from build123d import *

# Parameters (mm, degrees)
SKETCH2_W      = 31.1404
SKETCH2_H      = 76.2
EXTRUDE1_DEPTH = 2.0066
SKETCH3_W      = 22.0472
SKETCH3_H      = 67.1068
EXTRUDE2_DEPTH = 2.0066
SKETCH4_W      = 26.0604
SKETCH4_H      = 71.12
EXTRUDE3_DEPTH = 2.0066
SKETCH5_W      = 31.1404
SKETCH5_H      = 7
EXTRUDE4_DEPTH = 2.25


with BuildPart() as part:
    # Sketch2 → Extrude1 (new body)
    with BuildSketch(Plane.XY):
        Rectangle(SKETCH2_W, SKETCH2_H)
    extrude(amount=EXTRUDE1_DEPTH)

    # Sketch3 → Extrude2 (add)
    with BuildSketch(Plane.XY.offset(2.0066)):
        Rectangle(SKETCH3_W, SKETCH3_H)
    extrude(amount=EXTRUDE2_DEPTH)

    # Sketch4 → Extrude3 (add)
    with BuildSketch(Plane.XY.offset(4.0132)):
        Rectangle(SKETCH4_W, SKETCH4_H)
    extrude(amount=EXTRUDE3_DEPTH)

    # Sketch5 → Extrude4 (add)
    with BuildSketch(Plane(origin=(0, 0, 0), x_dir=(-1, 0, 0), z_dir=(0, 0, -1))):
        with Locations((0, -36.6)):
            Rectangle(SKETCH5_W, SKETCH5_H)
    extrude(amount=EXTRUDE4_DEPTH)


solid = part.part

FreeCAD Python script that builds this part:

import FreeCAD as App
import Part
import Sketcher
Q = App.Units.Quantity

doc = App.newDocument("Part")
params = doc.addObject("Spreadsheet::Sheet", "Params")
for row, (alias, value) in enumerate([
    ("sketch1_height", "3 in"),
    ("sketch1_width", "1.226 in"),
    ("pad1_length", "0.079 in"),
    ("sketch2_width", "0.868 in"),
    ("sketch2_height", "2.642 in"),
    ("pad2_length", "0.079 in"),
    ("sketch3_height", "2.8 in"),
    ("sketch3_width", "1.026 in"),
    ("pad3_length", "0.079 in"),
    ("sketch4_width", "1.226 in"),
    ("pad4_length", "2.25 mm"),
], start=1):
    params.set(f"A{row}", alias)
    params.set(f"B{row}", "=" + value)
    params.setAlias(f"B{row}", alias)

body = doc.addObject("PartDesign::Body", "Body")

sketch1 = body.newObject("Sketcher::SketchObject", "Sketch")
sketch1.AttachmentSupport = (doc.getObject("XY_Plane"), [""])
sketch1.MapMode = "FlatFace"
sketch1.addGeometry(Part.LineSegment(App.Vector(-16, 38, 0), App.Vector(-16, -38, 0)), False)
sketch1.addGeometry(Part.LineSegment(App.Vector(-16, -38, 0), App.Vector(16, -38, 0)), False)
sketch1.addGeometry(Part.LineSegment(App.Vector(16, -38, 0), App.Vector(16, 38, 0)), False)
sketch1.addGeometry(Part.LineSegment(App.Vector(16, 38, 0), App.Vector(-16, 38, 0)), False)
sketch1.addConstraint(Sketcher.Constraint("Coincident", 0, 2, 1, 1))
sketch1.addConstraint(Sketcher.Constraint("Coincident", 1, 2, 2, 1))
sketch1.addConstraint(Sketcher.Constraint("Coincident", 2, 2, 3, 1))
sketch1.addConstraint(Sketcher.Constraint("Coincident", 3, 2, 0, 1))
sketch1.addConstraint(Sketcher.Constraint("Vertical", 0))
sketch1.addConstraint(Sketcher.Constraint("Horizontal", 1))
sketch1.addConstraint(Sketcher.Constraint("Vertical", 2))
sketch1.addConstraint(Sketcher.Constraint("Horizontal", 3))
sketch1.addConstraint(Sketcher.Constraint("Symmetric", 0, 2, 2, 2, -1, 1))
sketch1.addConstraint(Sketcher.Constraint("DistanceY", 0, 2, 0, 1, Q("3 in")))
sketch1.addConstraint(Sketcher.Constraint("DistanceX", 1, 1, 1, 2, Q("1.226 in")))
sketch1.setExpression("Constraints[9]", "Params.sketch1_height")
sketch1.setExpression("Constraints[10]", "Params.sketch1_width")
pad1 = body.newObject("PartDesign::Pad", "Pad")
pad1.Profile = sketch1
pad1.setExpression("Length", "Params.pad1_length")

sketch2 = body.newObject("Sketcher::SketchObject", "Sketch001")
sketch2.AttachmentSupport = (doc.getObject("XY_Plane"), [""])
sketch2.MapMode = "FlatFace"
sketch2.AttachmentOffset = App.Placement(App.Vector(0, 0, 0.079 * 25.4), App.Rotation())
sketch2.addGeometry(Part.LineSegment(App.Vector(-11, 34, 0), App.Vector(-11, -34, 0)), False)
sketch2.addGeometry(Part.LineSegment(App.Vector(-11, -34, 0), App.Vector(11, -34, 0)), False)
sketch2.addGeometry(Part.LineSegment(App.Vector(11, -34, 0), App.Vector(11, 34, 0)), False)
sketch2.addGeometry(Part.LineSegment(App.Vector(11, 34, 0), App.Vector(-11, 34, 0)), False)
sketch2.addConstraint(Sketcher.Constraint("Coincident", 0, 2, 1, 1))
sketch2.addConstraint(Sketcher.Constraint("Coincident", 1, 2, 2, 1))
sketch2.addConstraint(Sketcher.Constraint("Coincident", 2, 2, 3, 1))
sketch2.addConstraint(Sketcher.Constraint("Coincident", 3, 2, 0, 1))
sketch2.addConstraint(Sketcher.Constraint("Vertical", 0))
sketch2.addConstraint(Sketcher.Constraint("Horizontal", 1))
sketch2.addConstraint(Sketcher.Constraint("Vertical", 2))
sketch2.addConstraint(Sketcher.Constraint("Horizontal", 3))
sketch2.addConstraint(Sketcher.Constraint("Symmetric", 0, 2, 2, 2, -1, 1))
sketch2.addConstraint(Sketcher.Constraint("DistanceX", 1, 1, 1, 2, Q("0.868 in")))
sketch2.addConstraint(Sketcher.Constraint("DistanceY", 0, 2, 0, 1, Q("2.642 in")))
sketch2.setExpression("Constraints[9]", "Params.sketch2_width")
sketch2.setExpression("Constraints[10]", "Params.sketch2_height")
pad2 = body.newObject("PartDesign::Pad", "Pad001")
pad2.Profile = sketch2
pad2.setExpression("Length", "Params.pad2_length")

sketch3 = body.newObject("Sketcher::SketchObject", "Sketch002")
sketch3.AttachmentSupport = (doc.getObject("XY_Plane"), [""])
sketch3.MapMode = "FlatFace"
sketch3.AttachmentOffset = App.Placement(App.Vector(0, 0, 0.158 * 25.4), App.Rotation())
sketch3.addGeometry(Part.LineSegment(App.Vector(-13, 36, 0), App.Vector(-13, -36, 0)), False)
sketch3.addGeometry(Part.LineSegment(App.Vector(-13, -36, 0), App.Vector(13, -36, 0)), False)
sketch3.addGeometry(Part.LineSegment(App.Vector(13, -36, 0), App.Vector(13, 36, 0)), False)
sketch3.addGeometry(Part.LineSegment(App.Vector(13, 36, 0), App.Vector(-13, 36, 0)), False)
sketch3.addConstraint(Sketcher.Constraint("Coincident", 0, 2, 1, 1))
sketch3.addConstraint(Sketcher.Constraint("Coincident", 1, 2, 2, 1))
sketch3.addConstraint(Sketcher.Constraint("Coincident", 2, 2, 3, 1))
sketch3.addConstraint(Sketcher.Constraint("Coincident", 3, 2, 0, 1))
sketch3.addConstraint(Sketcher.Constraint("Vertical", 0))
sketch3.addConstraint(Sketcher.Constraint("Horizontal", 1))
sketch3.addConstraint(Sketcher.Constraint("Vertical", 2))
sketch3.addConstraint(Sketcher.Constraint("Horizontal", 3))
sketch3.addConstraint(Sketcher.Constraint("Symmetric", 0, 2, 2, 2, -1, 1))
sketch3.addConstraint(Sketcher.Constraint("DistanceY", 0, 2, 0, 1, Q("2.8 in")))
sketch3.addConstraint(Sketcher.Constraint("DistanceX", 1, 1, 1, 2, Q("1.026 in")))
sketch3.setExpression("Constraints[9]", "Params.sketch3_height")
sketch3.setExpression("Constraints[10]", "Params.sketch3_width")
pad3 = body.newObject("PartDesign::Pad", "Pad002")
pad3.Profile = sketch3
pad3.setExpression("Length", "Params.pad3_length")

sketch4 = body.newObject("Sketcher::SketchObject", "Sketch003")
sketch4.AttachmentSupport = (doc.getObject("XY_Plane"), [""])
sketch4.MapMode = "FlatFace"
sketch4.addGeometry(Part.LineSegment(App.Vector(16, -33, 0), App.Vector(16, -40, 0)), False)
sketch4.addGeometry(Part.LineSegment(App.Vector(16, -40, 0), App.Vector(-16, -40, 0)), False)
sketch4.addGeometry(Part.LineSegment(App.Vector(-16, -40, 0), App.Vector(-16, -33, 0)), False)
sketch4.addGeometry(Part.LineSegment(App.Vector(-16, -33, 0), App.Vector(16, -33, 0)), False)
sketch4.addConstraint(Sketcher.Constraint("Coincident", 0, 2, 1, 1))
sketch4.addConstraint(Sketcher.Constraint("Coincident", 1, 2, 2, 1))
sketch4.addConstraint(Sketcher.Constraint("Coincident", 2, 2, 3, 1))
sketch4.addConstraint(Sketcher.Constraint("Coincident", 3, 2, 0, 1))
sketch4.addConstraint(Sketcher.Constraint("Vertical", 0))
sketch4.addConstraint(Sketcher.Constraint("Horizontal", 1))
sketch4.addConstraint(Sketcher.Constraint("Vertical", 2))
sketch4.addConstraint(Sketcher.Constraint("Horizontal", 3))
sketch4.addConstraint(Sketcher.Constraint("DistanceX", 1, 2, 1, 1, Q("1.226 in")))
sketch4.addConstraint(Sketcher.Constraint("DistanceX", -1, 1, 0, 2, Q("0.613 in")))
sketch4.addConstraint(Sketcher.Constraint("DistanceY", 0, 2, 0, 1, Q("7 mm")))
sketch4.addConstraint(Sketcher.Constraint("DistanceY", 0, 2, -1, 1, Q("40.1 mm")))
sketch4.setExpression("Constraints[8]", "Params.sketch4_width")
pad4 = body.newObject("PartDesign::Pad", "Pad003")
pad4.Profile = sketch4
pad4.setExpression("Length", "Params.pad4_length")
pad4.Reversed = True

doc.recompute()
